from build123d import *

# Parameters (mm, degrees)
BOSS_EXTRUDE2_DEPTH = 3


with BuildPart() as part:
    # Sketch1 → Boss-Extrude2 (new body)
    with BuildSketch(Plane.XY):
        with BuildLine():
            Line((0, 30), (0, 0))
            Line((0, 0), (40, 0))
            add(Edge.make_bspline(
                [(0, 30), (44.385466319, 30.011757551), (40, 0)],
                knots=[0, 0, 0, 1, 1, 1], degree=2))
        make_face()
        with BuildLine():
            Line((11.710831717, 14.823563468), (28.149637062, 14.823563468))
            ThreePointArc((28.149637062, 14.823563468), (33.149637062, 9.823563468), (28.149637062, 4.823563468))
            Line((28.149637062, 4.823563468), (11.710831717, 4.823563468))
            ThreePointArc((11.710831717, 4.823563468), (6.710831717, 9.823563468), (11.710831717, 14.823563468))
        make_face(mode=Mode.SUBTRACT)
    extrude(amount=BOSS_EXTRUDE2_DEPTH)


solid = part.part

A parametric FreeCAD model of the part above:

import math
import FreeCAD as App
import Part
import Sketcher

V = App.Vector

doc = App.newDocument("Part")
body = doc.addObject("PartDesign::Body", "Body")

sketch1 = body.newObject("Sketcher::SketchObject", "Sketch")
sketch1.AttachmentSupport = (doc.getObject("XY_Plane"), [""])
sketch1.MapMode = "FlatFace"
sketch1.addGeometry([
    Part.LineSegment(V(0, 30, 0), V(0, 0, 0)),
    Part.LineSegment(V(0, 0, 0), V(40, 0, 0)),
    Part.BSplineCurve([V(0, 30, 0), V(44.385466, 30.011758, 0), V(40, 0, 0)], [3, 3], [0, 1], False, 2, [1, 1, 1], False),
    Part.ArcOfCircle(Part.Circle(V(11.710832, 9.823563, 0), V(0, 0, 1), 5), math.radians(90), math.radians(270)),
    Part.LineSegment(V(11.710832, 14.823563, 0), V(28.149637, 14.823563, 0)),
    Part.ArcOfCircle(Part.Circle(V(28.149637, 9.823563, 0), V(0, 0, 1), 5), math.radians(-90), math.radians(90)),
    Part.LineSegment(V(28.149637, 4.823563, 0), V(11.710832, 4.823563, 0)),
], False)
sketch1.addConstraint([
    Sketcher.Constraint("Block", 2),
    Sketcher.Constraint("Coincident", 0, 2, 1, 1),
    Sketcher.Constraint("Coincident", 1, 2, 2, 2),
    Sketcher.Constraint("Coincident", 2, 1, 0, 1),
    Sketcher.Constraint("Tangent", 3, 1, 4, 1),
    Sketcher.Constraint("Tangent", 4, 2, 5, 2),
    Sketcher.Constraint("Tangent", 5, 1, 6, 1),
    Sketcher.Constraint("Tangent", 6, 2, 3, 2),
    Sketcher.Constraint("Vertical", 0),
    Sketcher.Constraint("Horizontal", 1),
    Sketcher.Constraint("Horizontal", 4),
    Sketcher.Constraint("Horizontal", 6),
    Sketcher.Constraint("Radius", 3, 5.0),
    Sketcher.Constraint("DistanceX", 4, 1, 4, 2, 16.438805),
    Sketcher.Constraint("DistanceX", -1, 1, 3, 3, 11.710832),
    Sketcher.Constraint("DistanceY", -1, 1, 3, 3, 9.823563),
])
pad1 = body.newObject("PartDesign::Pad", "Pad")
pad1.Profile = sketch1
pad1.Length = 3

doc.recompute()
